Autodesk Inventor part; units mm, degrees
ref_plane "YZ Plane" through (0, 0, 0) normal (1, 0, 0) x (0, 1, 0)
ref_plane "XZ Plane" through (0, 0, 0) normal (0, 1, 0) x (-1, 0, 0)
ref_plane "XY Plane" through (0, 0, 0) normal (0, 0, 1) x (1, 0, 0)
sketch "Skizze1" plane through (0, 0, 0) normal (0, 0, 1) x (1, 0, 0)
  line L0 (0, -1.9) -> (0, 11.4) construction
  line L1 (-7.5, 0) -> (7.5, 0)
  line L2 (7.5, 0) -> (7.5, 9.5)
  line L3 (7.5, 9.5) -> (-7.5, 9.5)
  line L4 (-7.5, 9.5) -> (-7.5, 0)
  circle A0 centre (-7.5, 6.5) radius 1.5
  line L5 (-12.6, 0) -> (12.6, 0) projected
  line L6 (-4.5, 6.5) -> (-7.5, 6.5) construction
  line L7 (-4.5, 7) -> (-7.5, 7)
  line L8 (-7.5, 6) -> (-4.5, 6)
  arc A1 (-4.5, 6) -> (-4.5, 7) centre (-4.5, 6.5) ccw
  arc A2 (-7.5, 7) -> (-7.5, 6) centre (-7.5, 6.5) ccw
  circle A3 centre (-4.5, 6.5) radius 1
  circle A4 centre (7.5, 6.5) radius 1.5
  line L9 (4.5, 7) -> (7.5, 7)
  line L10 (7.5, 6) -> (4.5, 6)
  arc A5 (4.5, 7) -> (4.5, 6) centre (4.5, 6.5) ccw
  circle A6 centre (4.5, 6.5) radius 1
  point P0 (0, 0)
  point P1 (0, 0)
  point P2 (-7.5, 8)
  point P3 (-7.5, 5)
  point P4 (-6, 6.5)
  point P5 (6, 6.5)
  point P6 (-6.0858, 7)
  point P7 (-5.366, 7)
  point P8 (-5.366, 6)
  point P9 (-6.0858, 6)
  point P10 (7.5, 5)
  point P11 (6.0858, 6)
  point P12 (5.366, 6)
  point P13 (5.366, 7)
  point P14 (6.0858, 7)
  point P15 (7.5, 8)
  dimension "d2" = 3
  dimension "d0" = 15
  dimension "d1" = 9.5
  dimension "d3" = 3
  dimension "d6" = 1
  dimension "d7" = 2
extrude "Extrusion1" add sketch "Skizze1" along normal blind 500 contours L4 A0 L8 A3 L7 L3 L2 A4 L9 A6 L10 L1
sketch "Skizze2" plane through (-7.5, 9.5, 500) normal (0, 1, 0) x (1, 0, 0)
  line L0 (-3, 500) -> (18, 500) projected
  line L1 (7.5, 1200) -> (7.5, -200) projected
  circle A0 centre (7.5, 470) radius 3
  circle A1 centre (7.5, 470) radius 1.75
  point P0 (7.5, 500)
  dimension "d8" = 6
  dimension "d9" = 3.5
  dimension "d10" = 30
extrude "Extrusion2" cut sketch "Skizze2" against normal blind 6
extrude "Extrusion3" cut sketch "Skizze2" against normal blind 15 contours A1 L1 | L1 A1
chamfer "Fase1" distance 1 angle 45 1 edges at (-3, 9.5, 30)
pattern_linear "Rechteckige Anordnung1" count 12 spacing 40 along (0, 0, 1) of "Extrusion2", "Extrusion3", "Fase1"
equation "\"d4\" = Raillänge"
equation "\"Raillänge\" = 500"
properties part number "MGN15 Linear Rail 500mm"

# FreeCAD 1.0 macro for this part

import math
import FreeCAD as App
import Part
import Sketcher
from FreeCAD import Vector
Q = App.Units.Quantity


def edges_at(feature, points):
    """Names of the edges that pass closest to the given points."""
    edges = feature.Shape.Edges
    near = lambda p: min(range(len(edges)), key=lambda i: edges[i].distToShape(Part.Vertex(*p))[0])
    return sorted({f"Edge{near(p) + 1}" for p in points})

doc = App.newDocument("Part")
body = doc.addObject("PartDesign::Body", "Body")

# Sketch on XY plane
sketch1 = body.newObject("Sketcher::SketchObject", "Sketch")
sketch1.AttachmentSupport = (doc.getObject("XY_Plane"), [""])
sketch1.MapMode = "FlatFace"
sketch1.addGeometry([
    Part.LineSegment(Vector(-7.5, 5, 0), Vector(-7.5, 0, 0)),  # 0
    Part.LineSegment(Vector(-7.5, 0, 0), Vector(7.5, 0, 0)),  # 1
    Part.LineSegment(Vector(7.5, 0, 0), Vector(7.5, 5, 0)),  # 2
    Part.ArcOfCircle(Part.Circle(Vector(7.5, 6.5, 0), Vector(0, 0, 1), 1.5), math.radians(-161), math.radians(-90)),  # 3
    Part.LineSegment(Vector(6.1, 6, 0), Vector(5.4, 6, 0)),  # 4
    Part.ArcOfCircle(Part.Circle(Vector(4.5, 6.5, 0), Vector(0, 0, 1), 1), math.radians(30), math.radians(330)),  # 5
    Part.LineSegment(Vector(5.4, 7, 0), Vector(6.1, 7, 0)),  # 6
    Part.ArcOfCircle(Part.Circle(Vector(7.5, 6.5, 0), Vector(0, 0, 1), 1.5), math.radians(90), math.radians(161)),  # 7
    Part.LineSegment(Vector(7.5, 8, 0), Vector(7.5, 9.5, 0)),  # 8
    Part.LineSegment(Vector(7.5, 9.5, 0), Vector(-7.5, 9.5, 0)),  # 9
    Part.LineSegment(Vector(-7.5, 9.5, 0), Vector(-7.5, 8, 0)),  # 10
    Part.ArcOfCircle(Part.Circle(Vector(-7.5, 6.5, 0), Vector(0, 0, 1), 1.5), math.radians(19), math.radians(90)),  # 11
    Part.LineSegment(Vector(-6.1, 7, 0), Vector(-5.4, 7, 0)),  # 12
    Part.ArcOfCircle(Part.Circle(Vector(-4.5, 6.5, 0), Vector(0, 0, 1), 1), math.radians(-150), math.radians(150)),  # 13
    Part.LineSegment(Vector(-5.4, 6, 0), Vector(-6.1, 6, 0)),  # 14
    Part.ArcOfCircle(Part.Circle(Vector(-7.5, 6.5, 0), Vector(0, 0, 1), 1.5), math.radians(-90), math.radians(-19)),  # 15
], False)
sketch1.addConstraint([
    Sketcher.Constraint("Coincident", 0, 2, 1, 1),
    Sketcher.Constraint("Coincident", 1, 2, 2, 1),
    Sketcher.Constraint("Coincident", 2, 2, 3, 2),
    Sketcher.Constraint("Coincident", 3, 1, 4, 1),
    Sketcher.Constraint("Coincident", 4, 2, 5, 2),
    Sketcher.Constraint("Coincident", 5, 1, 6, 1),
    Sketcher.Constraint("Coincident", 6, 2, 7, 2),
    Sketcher.Constraint("Coincident", 7, 1, 8, 1),
    Sketcher.Constraint("Coincident", 8, 2, 9, 1),
    Sketcher.Constraint("Coincident", 9, 2, 10, 1),
    Sketcher.Constraint("Coincident", 10, 2, 11, 2),
    Sketcher.Constraint("Coincident", 11, 1, 12, 1),
    Sketcher.Constraint("Coincident", 12, 2, 13, 2),
    Sketcher.Constraint("Coincident", 13, 1, 14, 1),
    Sketcher.Constraint("Coincident", 14, 2, 15, 2),
    Sketcher.Constraint("Coincident", 15, 1, 0, 1),
    Sketcher.Constraint("Vertical", 0),
    Sketcher.Constraint("Horizontal", 1),
    Sketcher.Constraint("Vertical", 2),
    Sketcher.Constraint("Horizontal", 4),
    Sketcher.Constraint("Horizontal", 6),
    Sketcher.Constraint("Vertical", 8),
    Sketcher.Constraint("Horizontal", 9),
    Sketcher.Constraint("Vertical", 10),
    Sketcher.Constraint("Horizontal", 12),
    Sketcher.Constraint("Horizontal", 14),
    Sketcher.Constraint("Coincident", 7, 3, 3, 3),
    Sketcher.Constraint("Coincident", 15, 3, 11, 3),
    Sketcher.Constraint("Equal", 3, 7),
    Sketcher.Constraint("Equal", 7, 11),
    Sketcher.Constraint("Equal", 5, 13),
    Sketcher.Constraint("Equal", 11, 15),
    Sketcher.Constraint("Symmetric", 0, 2, 1, 2, -1, 1),
    Sketcher.Constraint("Symmetric", 3, 3, 11, 3, -2),
    Sketcher.Constraint("Symmetric", 5, 3, 13, 3, -2),
    Sketcher.Constraint("Horizontal", 3, 3, 5, 3),
    Sketcher.Constraint("Horizontal", 6, 2, 11, 1),
    Sketcher.Constraint("Horizontal", 4, 2, 13, 1),
    Sketcher.Constraint("Vertical", 15, 3, 0, 2),
    Sketcher.Constraint("Vertical", 4, 2, 5, 1),
    Sketcher.Constraint("Vertical", 2, 2, 7, 1),
    Sketcher.Constraint("Vertical", 0, 2, 9, 2),
    Sketcher.Constraint("Radius", 5, Q("1 mm")),
    Sketcher.Constraint("Radius", 3, Q("1.5 mm")),
    Sketcher.Constraint("DistanceX", 1, 1, 1, 2, Q("15 mm")),
    Sketcher.Constraint("DistanceX", 5, 3, 3, 3, Q("3 mm")),
    Sketcher.Constraint("DistanceY", 2, 2, 3, 1, Q("1 mm")),
    Sketcher.Constraint("DistanceY", 3, 3, 8, 2, Q("3 mm")),
    Sketcher.Constraint("DistanceY", -1, 1, 8, 2, Q("9.5 mm")),
])
pad1 = body.newObject("PartDesign::Pad", "Pad")
pad1.Profile = sketch1
pad1.Length = 500

# Sketch on XZ plane
sketch2 = body.newObject("Sketcher::SketchObject", "Sketch001")
sketch2.AttachmentSupport = (doc.getObject("XZ_Plane"), [""])
sketch2.MapMode = "FlatFace"
sketch2.AttachmentOffset = App.Placement(Vector(0, 0, -9.5), App.Rotation())
sketch2.addGeometry(Part.Circle(Vector(0, 30, 0), Vector(0, 0, 1), 3), False)
sketch2.addConstraint([
    Sketcher.Constraint("PointOnObject", 0, 3, -2),
    Sketcher.Constraint("Diameter", 0, Q("6 mm")),
    Sketcher.Constraint("DistanceY", -1, 1, 0, 3, Q("30 mm")),
])
pocket1 = body.newObject("PartDesign::Pocket", "Pocket")
pocket1.Profile = sketch2
pocket1.Length = 6
pocket1.Reversed = True

# Sketch on XZ plane
sketch3 = body.newObject("Sketcher::SketchObject", "Sketch002")
sketch3.AttachmentSupport = (doc.getObject("XZ_Plane"), [""])
sketch3.MapMode = "FlatFace"
sketch3.AttachmentOffset = App.Placement(Vector(0, 0, -9.5), App.Rotation())
sketch3.addGeometry(Part.Circle(Vector(0, 30, 0), Vector(0, 0, 1), 1.8), False)
sketch3.addConstraint([
    Sketcher.Constraint("PointOnObject", 0, 3, -2),
    Sketcher.Constraint("Diameter", 0, Q("3.5 mm")),
    Sketcher.Constraint("DistanceY", -1, 1, 0, 3, Q("30 mm")),
])
pocket2 = body.newObject("PartDesign::Pocket", "Pocket001")
pocket2.Profile = sketch3
pocket2.Length = 15
pocket2.Reversed = True
doc.recompute()

chamfer = body.newObject("PartDesign::Chamfer", "Chamfer")
chamfer.Base = (pocket2, edges_at(pocket2, [(-3, 9.5, 30)]))
chamfer.Size = 1
doc.recompute()

linearpattern = body.newObject("PartDesign::LinearPattern", "LinearPattern")
linearpattern.Originals = [pocket1, pocket2, chamfer]
linearpattern.Direction = (doc.getObject("Z_Axis"), [""])
linearpattern.Mode = "offset"
linearpattern.Offset = 40
linearpattern.Occurrences = 12
body.Tip = linearpattern

doc.recompute()
